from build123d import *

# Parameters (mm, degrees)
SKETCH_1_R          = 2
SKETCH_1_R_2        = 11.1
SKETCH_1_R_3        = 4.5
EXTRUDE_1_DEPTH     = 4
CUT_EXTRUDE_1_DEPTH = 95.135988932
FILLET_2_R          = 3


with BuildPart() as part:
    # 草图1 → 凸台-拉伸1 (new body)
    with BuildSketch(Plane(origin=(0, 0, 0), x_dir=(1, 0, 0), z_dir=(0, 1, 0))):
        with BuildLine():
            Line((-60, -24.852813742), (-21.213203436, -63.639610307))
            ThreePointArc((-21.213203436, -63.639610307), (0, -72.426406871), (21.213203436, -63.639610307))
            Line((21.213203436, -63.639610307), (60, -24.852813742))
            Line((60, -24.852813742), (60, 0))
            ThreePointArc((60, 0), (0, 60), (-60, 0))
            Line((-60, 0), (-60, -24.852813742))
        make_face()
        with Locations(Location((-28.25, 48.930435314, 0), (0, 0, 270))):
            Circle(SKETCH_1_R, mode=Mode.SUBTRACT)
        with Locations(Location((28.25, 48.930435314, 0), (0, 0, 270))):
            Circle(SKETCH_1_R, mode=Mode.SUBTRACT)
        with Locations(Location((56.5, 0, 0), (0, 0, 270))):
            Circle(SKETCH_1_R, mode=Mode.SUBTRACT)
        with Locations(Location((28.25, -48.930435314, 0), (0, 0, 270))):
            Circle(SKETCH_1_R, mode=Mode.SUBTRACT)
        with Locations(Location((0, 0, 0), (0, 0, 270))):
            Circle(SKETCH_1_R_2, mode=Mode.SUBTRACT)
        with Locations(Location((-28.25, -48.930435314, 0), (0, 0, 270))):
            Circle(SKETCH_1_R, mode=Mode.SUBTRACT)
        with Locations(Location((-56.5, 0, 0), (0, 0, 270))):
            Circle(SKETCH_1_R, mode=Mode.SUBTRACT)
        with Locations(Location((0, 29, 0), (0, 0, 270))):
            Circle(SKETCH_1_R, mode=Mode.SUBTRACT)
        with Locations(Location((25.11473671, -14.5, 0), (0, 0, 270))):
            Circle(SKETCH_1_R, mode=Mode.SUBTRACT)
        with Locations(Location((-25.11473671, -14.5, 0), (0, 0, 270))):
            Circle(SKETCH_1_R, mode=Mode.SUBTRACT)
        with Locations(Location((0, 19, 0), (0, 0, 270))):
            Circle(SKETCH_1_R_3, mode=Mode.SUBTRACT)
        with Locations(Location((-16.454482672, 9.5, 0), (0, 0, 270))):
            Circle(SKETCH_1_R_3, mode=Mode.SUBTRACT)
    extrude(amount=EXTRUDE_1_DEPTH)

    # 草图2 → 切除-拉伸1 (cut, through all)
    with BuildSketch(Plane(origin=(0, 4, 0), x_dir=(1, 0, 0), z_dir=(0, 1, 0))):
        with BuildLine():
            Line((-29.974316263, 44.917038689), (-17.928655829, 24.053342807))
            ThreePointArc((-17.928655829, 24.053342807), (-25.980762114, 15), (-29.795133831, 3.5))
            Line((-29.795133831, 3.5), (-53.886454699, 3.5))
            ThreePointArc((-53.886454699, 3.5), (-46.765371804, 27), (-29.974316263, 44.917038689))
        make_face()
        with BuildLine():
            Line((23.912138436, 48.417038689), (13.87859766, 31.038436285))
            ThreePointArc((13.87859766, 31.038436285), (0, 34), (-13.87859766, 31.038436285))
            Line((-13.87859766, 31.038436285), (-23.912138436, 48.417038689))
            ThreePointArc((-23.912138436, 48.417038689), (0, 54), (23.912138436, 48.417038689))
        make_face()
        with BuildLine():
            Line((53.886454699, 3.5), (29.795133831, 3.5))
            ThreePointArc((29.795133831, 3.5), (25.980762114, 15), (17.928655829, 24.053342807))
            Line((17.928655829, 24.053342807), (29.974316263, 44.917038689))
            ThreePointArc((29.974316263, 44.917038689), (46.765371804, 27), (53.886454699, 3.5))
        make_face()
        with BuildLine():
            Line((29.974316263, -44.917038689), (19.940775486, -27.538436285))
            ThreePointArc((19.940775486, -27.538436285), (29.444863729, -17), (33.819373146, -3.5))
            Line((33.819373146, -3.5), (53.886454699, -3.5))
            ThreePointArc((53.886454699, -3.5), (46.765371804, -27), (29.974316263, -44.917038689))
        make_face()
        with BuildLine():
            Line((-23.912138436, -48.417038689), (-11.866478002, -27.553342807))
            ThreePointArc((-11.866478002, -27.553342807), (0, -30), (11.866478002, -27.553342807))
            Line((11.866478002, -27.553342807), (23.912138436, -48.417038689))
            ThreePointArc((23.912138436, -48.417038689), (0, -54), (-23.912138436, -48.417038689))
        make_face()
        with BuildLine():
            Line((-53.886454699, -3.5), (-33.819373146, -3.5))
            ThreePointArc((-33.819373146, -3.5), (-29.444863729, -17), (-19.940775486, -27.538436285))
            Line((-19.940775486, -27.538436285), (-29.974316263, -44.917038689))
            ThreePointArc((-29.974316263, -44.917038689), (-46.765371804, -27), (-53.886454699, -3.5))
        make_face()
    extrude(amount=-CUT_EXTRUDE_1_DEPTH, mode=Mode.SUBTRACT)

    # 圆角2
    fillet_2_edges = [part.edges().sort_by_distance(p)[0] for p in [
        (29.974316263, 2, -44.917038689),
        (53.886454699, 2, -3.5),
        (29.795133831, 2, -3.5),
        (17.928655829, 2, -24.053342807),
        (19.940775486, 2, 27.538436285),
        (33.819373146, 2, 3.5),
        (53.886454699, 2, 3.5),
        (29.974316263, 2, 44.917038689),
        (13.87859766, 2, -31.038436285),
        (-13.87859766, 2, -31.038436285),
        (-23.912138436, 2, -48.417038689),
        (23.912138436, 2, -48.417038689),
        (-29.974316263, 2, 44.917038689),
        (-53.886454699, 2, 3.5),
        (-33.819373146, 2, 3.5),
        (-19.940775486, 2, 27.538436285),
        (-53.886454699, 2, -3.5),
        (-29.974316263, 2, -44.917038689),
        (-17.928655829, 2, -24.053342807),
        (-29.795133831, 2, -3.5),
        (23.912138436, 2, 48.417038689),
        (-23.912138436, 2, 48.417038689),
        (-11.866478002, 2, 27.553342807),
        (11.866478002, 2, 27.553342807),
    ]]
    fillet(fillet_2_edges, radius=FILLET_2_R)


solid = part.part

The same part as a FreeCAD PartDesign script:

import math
import FreeCAD as App
import Part
import Sketcher

V = App.Vector
Q = App.Units.Quantity


def edges_at(feature, points):
    """Names of the edges that pass closest to the given points."""
    edges = feature.Shape.Edges
    near = lambda p: min(range(len(edges)), key=lambda i: edges[i].distToShape(Part.Vertex(*p))[0])
    return sorted({f"Edge{near(p) + 1}" for p in points})

doc = App.newDocument("Part")
body = doc.addObject("PartDesign::Body", "Body")

# Sketch on XZ plane
sketch1 = doc.addObject("Sketcher::SketchObject", "Sketch")
body.addObject(sketch1)
sketch1.AttachmentSupport = (doc.XZ_Plane, [""])
sketch1.MapMode = "FlatFace"
sketch1.addGeometry(Part.LineSegment(V(-60, 24.9, 0), V(-21.2, 63.6, 0)), False)
sketch1.addGeometry(Part.ArcOfCircle(Part.Circle(V(0, 42.4, 0), V(0, 0, 1), 30), math.radians(45), math.radians(135)), False)
sketch1.addGeometry(Part.LineSegment(V(21.2, 63.6, 0), V(60, 24.9, 0)), False)
sketch1.addGeometry(Part.LineSegment(V(60, 24.9, 0), V(60, 0, 0)), False)
sketch1.addGeometry(Part.ArcOfCircle(Part.Circle(V(0, 0, 0), V(0, 0, 1), 60), math.radians(180), math.radians(360)), False)
sketch1.addGeometry(Part.LineSegment(V(-60, 0, 0), V(-60, 24.9, 0)), False)
sketch1.addGeometry(Part.Circle(V(-28.2, 48.9, 0), V(0, 0, 1), 2), False)
sketch1.addGeometry(Part.Circle(V(-25.1, 14.5, 0), V(0, 0, 1), 2), False)
sketch1.addGeometry(Part.Circle(V(28.2, 48.9, 0), V(0, 0, 1), 2), False)
sketch1.addGeometry(Part.Circle(V(25.1, 14.5, 0), V(0, 0, 1), 2), False)
sketch1.addGeometry(Part.Circle(V(-56.5, 0, 0), V(0, 0, 1), 2), False)
sketch1.addGeometry(Part.Circle(V(-16.5, -9.5, 0), V(0, 0, 1), 4.5), False)
sketch1.addGeometry(Part.Circle(V(-28.2, -48.9, 0), V(0, 0, 1), 2), False)
sketch1.addGeometry(Part.Circle(V(0, 0, 0), V(0, 0, 1), 11.1), False)
sketch1.addGeometry(Part.Circle(V(0, -19, 0), V(0, 0, 1), 4.5), False)
sketch1.addGeometry(Part.Circle(V(56.5, 0, 0), V(0, 0, 1), 2), False)
sketch1.addGeometry(Part.Circle(V(0, -29, 0), V(0, 0, 1), 2), False)
sketch1.addGeometry(Part.Circle(V(28.2, -48.9, 0), V(0, 0, 1), 2), False)
sketch1.addConstraint(Sketcher.Constraint("Tangent", 0, 2, 1, 2))
sketch1.addConstraint(Sketcher.Constraint("Tangent", 1, 1, 2, 1))
sketch1.addConstraint(Sketcher.Constraint("Coincident", 2, 2, 3, 1))
sketch1.addConstraint(Sketcher.Constraint("Tangent", 3, 2, 4, 2))
sketch1.addConstraint(Sketcher.Constraint("Tangent", 4, 1, 5, 1))
sketch1.addConstraint(Sketcher.Constraint("Coincident", 5, 2, 0, 1))
sketch1.addConstraint(Sketcher.Constraint("Vertical", 3))
sketch1.addConstraint(Sketcher.Constraint("Vertical", 5))
sketch1.addConstraint(Sketcher.Constraint("Coincident", 4, 3, -1, 1))
sketch1.addConstraint(Sketcher.Constraint("Coincident", 13, 3, -1, 1))
sketch1.addConstraint(Sketcher.Constraint("Equal", 6, 7))
sketch1.addConstraint(Sketcher.Constraint("Equal", 7, 8))
sketch1.addConstraint(Sketcher.Constraint("Equal", 8, 9))
sketch1.addConstraint(Sketcher.Constraint("Equal", 9, 10))
sketch1.addConstraint(Sketcher.Constraint("Equal", 10, 12))
sketch1.addConstraint(Sketcher.Constraint("Equal", 11, 14))
sketch1.addConstraint(Sketcher.Constraint("Equal", 12, 15))
sketch1.addConstraint(Sketcher.Constraint("Equal", 15, 16))
sketch1.addConstraint(Sketcher.Constraint("Equal", 16, 17))
sketch1.addConstraint(Sketcher.Constraint("Symmetric", 8, 3, 12, 3, -1, 1))
sketch1.addConstraint(Sketcher.Constraint("Symmetric", 10, 3, 15, 3, -1, 1))
sketch1.addConstraint(Sketcher.Constraint("Symmetric", 6, 3, 17, 3, -1, 1))
sketch1.addConstraint(Sketcher.Constraint("Symmetric", 6, 3, 8, 3, -2))
sketch1.addConstraint(Sketcher.Constraint("Symmetric", 7, 3, 9, 3, -2))
sketch1.addConstraint(Sketcher.Constraint("Symmetric", 0, 2, 1, 1, -2))
sketch1.addConstraint(Sketcher.Constraint("PointOnObject", 10, 3, -1))
sketch1.addConstraint(Sketcher.Constraint("PointOnObject", 14, 3, -2))
sketch1.addConstraint(Sketcher.Constraint("PointOnObject", 16, 3, -2))
sketch1.addConstraint(Sketcher.Constraint("Perpendicular", 0, 2))
sketch1.addConstraint(Sketcher.Constraint("Diameter", 6, Q("4 mm")))
sketch1.addConstraint(Sketcher.Constraint("Diameter", 11, Q("9 mm")))
sketch1.addConstraint(Sketcher.Constraint("Radius", 1, Q("30 mm")))
sketch1.addConstraint(Sketcher.Constraint("Radius", 4, Q("60 mm")))
sketch1.addConstraint(Sketcher.Constraint("Diameter", 13, Q("22.2 mm")))
sketch1.addConstraint(Sketcher.Constraint("DistanceY", 14, 3, -1, 1, Q("19 mm")))
sketch1.addConstraint(Sketcher.Constraint("DistanceY", 16, 3, -1, 1, Q("29 mm")))
sketch1.addConstraint(Sketcher.Constraint("DistanceY", 11, 3, 7, 3, Q("24 mm")))
sketch1.addConstraint(Sketcher.Constraint("DistanceY", -1, 1, 7, 3, Q("14.5 mm")))
sketch1.addConstraint(Sketcher.Constraint("DistanceX", 10, 3, -1, 1, Q("56.5 mm")))
sketch1.addConstraint(Sketcher.Constraint("DistanceX", 6, 3, 8, 3, Q("56.5 mm")))
sketch1.addConstraint(Sketcher.Constraint("DistanceY", 3, 2, 3, 1, Q("24.852814 mm")))
sketch1.addConstraint(Sketcher.Constraint("DistanceY", 1, 3, 6, 3, Q("6.504028 mm")))
sketch1.addConstraint(Sketcher.Constraint("DistanceX", 11, 3, 9, 3, Q("41.569219 mm")))
sketch1.addConstraint(Sketcher.Constraint("DistanceX", 7, 3, -1, 1, Q("25.114737 mm")))
pad1 = doc.addObject("PartDesign::Pad", "Pad")
body.addObject(pad1)
pad1.Profile = sketch1
pad1.Length = 4
pad1.Reversed = True

# Sketch on XZ plane
sketch2 = doc.addObject("Sketcher::SketchObject", "Sketch001")
body.addObject(sketch2)
sketch2.AttachmentSupport = (doc.XZ_Plane, [""])
sketch2.MapMode = "FlatFace"
sketch2.AttachmentOffset = App.Placement(V(0, 0, -4), App.Rotation())
sketch2.addGeometry(Part.LineSegment(V(-18, -24, 0), V(-30, -45, 0)), False)
sketch2.addGeometry(Part.ArcOfCircle(Part.Circle(V(0, 0, 0), V(0, 0, 1), 54), math.radians(-176), math.radians(-124)), False)
sketch2.addGeometry(Part.LineSegment(V(-54, -4, 0), V(-30, -4, 0)), False)
sketch2.addGeometry(Part.ArcOfCircle(Part.Circle(V(0, 0, 0), V(0, 0, 1), 30), math.radians(-173), math.radians(-127)), False)
sketch2.addGeometry(Part.LineSegment(V(14, -31, 0), V(24, -48, 0)), False)
sketch2.addGeometry(Part.ArcOfCircle(Part.Circle(V(0, 0, 0), V(0, 0, 1), 54), math.radians(-116), math.radians(-64)), False)
sketch2.addGeometry(Part.LineSegment(V(-24, -48, 0), V(-14, -31, 0)), False)
sketch2.addGeometry(Part.ArcOfCircle(Part.Circle(V(0, 0, 0), V(0, 0, 1), 34), math.radians(-114), math.radians(-66)), False)
sketch2.addGeometry(Part.LineSegment(V(30, -4, 0), V(54, -4, 0)), False)
sketch2.addGeometry(Part.ArcOfCircle(Part.Circle(V(0, 0, 0), V(0, 0, 1), 54), math.radians(-56), math.radians(-4)), False)
sketch2.addGeometry(Part.LineSegment(V(30, -45, 0), V(18, -24, 0)), False)
sketch2.addGeometry(Part.ArcOfCircle(Part.Circle(V(0, 0, 0), V(0, 0, 1), 30), math.radians(-53), math.radians(-7)), False)
sketch2.addGeometry(Part.LineSegment(V(20, 28, 0), V(30, 45, 0)), False)
sketch2.addGeometry(Part.ArcOfCircle(Part.Circle(V(0, 0, 0), V(0, 0, 1), 54), math.radians(4), math.radians(56)), False)
sketch2.addGeometry(Part.LineSegment(V(54, 4, 0), V(34, 4, 0)), False)
sketch2.addGeometry(Part.ArcOfCircle(Part.Circle(V(0, 0, 0), V(0, 0, 1), 34), math.radians(6), math.radians(54)), False)
sketch2.addGeometry(Part.LineSegment(V(-12, 28, 0), V(-24, 48, 0)), False)
sketch2.addGeometry(Part.ArcOfCircle(Part.Circle(V(0, 0, 0), V(0, 0, 1), 54), math.radians(64), math.radians(116)), False)
sketch2.addGeometry(Part.LineSegment(V(24, 48, 0), V(12, 28, 0)), False)
sketch2.addGeometry(Part.ArcOfCircle(Part.Circle(V(0, 0, 0), V(0, 0, 1), 30), math.radians(67), math.radians(113)), False)
sketch2.addGeometry(Part.LineSegment(V(-34, 4, 0), V(-54, 4, 0)), False)
sketch2.addGeometry(Part.ArcOfCircle(Part.Circle(V(0, 0, 0), V(0, 0, 1), 54), math.radians(124), math.radians(176)), False)
sketch2.addGeometry(Part.LineSegment(V(-30, 45, 0), V(-20, 28, 0)), False)
sketch2.addGeometry(Part.ArcOfCircle(Part.Circle(V(0, 0, 0), V(0, 0, 1), 34), math.radians(126), math.radians(174)), False)
sketch2.addConstraint(Sketcher.Constraint("Coincident", 0, 2, 1, 2))
sketch2.addConstraint(Sketcher.Constraint("Coincident", 1, 1, 2, 1))
sketch2.addConstraint(Sketcher.Constraint("Coincident", 2, 2, 3, 1))
sketch2.addConstraint(Sketcher.Constraint("Coincident", 3, 2, 0, 1))
sketch2.addConstraint(Sketcher.Constraint("Coincident", 4, 2, 5, 2))
sketch2.addConstraint(Sketcher.Constraint("Coincident", 5, 1, 6, 1))
sketch2.addConstraint(Sketcher.Constraint("Coincident", 6, 2, 7, 1))
sketch2.addConstraint(Sketcher.Constraint("Coincident", 7, 2, 4, 1))
sketch2.addConstraint(Sketcher.Constraint("Coincident", 8, 2, 9, 2))
sketch2.addConstraint(Sketcher.Constraint("Coincident", 9, 1, 10, 1))
sketch2.addConstraint(Sketcher.Constraint("Coincident", 10, 2, 11, 1))
sketch2.addConstraint(Sketcher.Constraint("Coincident", 11, 2, 8, 1))
sketch2.addConstraint(Sketcher.Constraint("Coincident", 12, 2, 13, 2))
sketch2.addConstraint(Sketcher.Constraint("Coincident", 13, 1, 14, 1))
sketch2.addConstraint(Sketcher.Constraint("Coincident", 14, 2, 15, 1))
sketch2.addConstraint(Sketcher.Constraint("Coincident", 15, 2, 12, 1))
sketch2.addConstraint(Sketcher.Constraint("Coincident", 16, 2, 17, 2))
sketch2.addConstraint(Sketcher.Constraint("Coincident", 17, 1, 18, 1))
sketch2.addConstraint(Sketcher.Constraint("Coincident", 18, 2, 19, 1))
sketch2.addConstraint(Sketcher.Constraint("Coincident", 19, 2, 16, 1))
sketch2.addConstraint(Sketcher.Constraint("Coincident", 20, 2, 21, 2))
sketch2.addConstraint(Sketcher.Constraint("Coincident", 21, 1, 22, 1))
sketch2.addConstraint(Sketcher.Constraint("Coincident", 22, 2, 23, 1))
sketch2.addConstraint(Sketcher.Constraint("Coincident", 23, 2, 20, 1))
sketch2.addConstraint(Sketcher.Constraint("Horizontal", 2))
sketch2.addConstraint(Sketcher.Constraint("Horizontal", 8))
sketch2.addConstraint(Sketcher.Constraint("Horizontal", 14))
sketch2.addConstraint(Sketcher.Constraint("Horizontal", 20))
sketch2.addConstraint(Sketcher.Constraint("Coincident", 1, 3, -1, 1))
sketch2.addConstraint(Sketcher.Constraint("Coincident", 3, 3, -1, 1))
sketch2.addConstraint(Sketcher.Constraint("Coincident", 5, 3, -1, 1))
sketch2.addConstraint(Sketcher.Constraint("Coincident", 7, 3, -1, 1))
sketch2.addConstraint(Sketcher.Constraint("Coincident", 9, 3, -1, 1))
sketch2.addConstraint(Sketcher.Constraint("Coincident", 11, 3, -1, 1))
sketch2.addConstraint(Sketcher.Constraint("Coincident", 13, 3, -1, 1))
sketch2.addConstraint(Sketcher.Constraint("Coincident", 15, 3, -1, 1))
sketch2.addConstraint(Sketcher.Constraint("Coincident", 17, 3, -1, 1))
sketch2.addConstraint(Sketcher.Constraint("Coincident", 19, 3, -1, 1))
sketch2.addConstraint(Sketcher.Constraint("Coincident", 21, 3, -1, 1))
sketch2.addConstraint(Sketcher.Constraint("Coincident", 23, 3, -1, 1))
sketch2.addConstraint(Sketcher.Constraint("Equal", 1, 5))
sketch2.addConstraint(Sketcher.Constraint("Equal", 5, 9))
sketch2.addConstraint(Sketcher.Constraint("Equal", 3, 11))
sketch2.addConstraint(Sketcher.Constraint("Equal", 9, 13))
sketch2.addConstraint(Sketcher.Constraint("Equal", 7, 15))
sketch2.addConstraint(Sketcher.Constraint("Equal", 13, 17))
sketch2.addConstraint(Sketcher.Constraint("Equal", 11, 19))
sketch2.addConstraint(Sketcher.Constraint("Equal", 17, 21))
sketch2.addConstraint(Sketcher.Constraint("Equal", 15, 23))
sketch2.addConstraint(Sketcher.Constraint("Parallel", 0, 6))
sketch2.addConstraint(Sketcher.Constraint("Parallel", 4, 10))
sketch2.addConstraint(Sketcher.Constraint("Parallel", 6, 12))
sketch2.addConstraint(Sketcher.Constraint("Parallel", 10, 16))
sketch2.addConstraint(Sketcher.Constraint("Parallel", 12, 18))
sketch2.addConstraint(Sketcher.Constraint("Parallel", 16, 22))
sketch2.addConstraint(Sketcher.Constraint("Horizontal", 4, 2, 5, 1))
sketch2.addConstraint(Sketcher.Constraint("Horizontal", 6, 2, 7, 2))
sketch2.addConstraint(Sketcher.Constraint("Horizontal", 2, 2, 8, 2))
sketch2.addConstraint(Sketcher.Constraint("Horizontal", 0, 2, 9, 1))
sketch2.addConstraint(Sketcher.Constraint("Horizontal", 16, 2, 17, 1))
sketch2.addConstraint(Sketcher.Constraint("Horizontal", 14, 2, 20, 2))
sketch2.addConstraint(Sketcher.Constraint("Horizontal", 12, 2, 21, 1))
sketch2.addConstraint(Sketcher.Constraint("Vertical", 9, 1, 12, 2))
sketch2.addConstraint(Sketcher.Constraint("Vertical", 8, 2, 13, 1))
sketch2.addConstraint(Sketcher.Constraint("Vertical", 5, 1, 16, 2))
sketch2.addConstraint(Sketcher.Constraint("Equal", 6, 12))
sketch2.addConstraint(Sketcher.Constraint("Radius", 1, Q("54 mm")))
sketch2.addConstraint(Sketcher.Constraint("Radius", 3, Q("30 mm")))
sketch2.addConstraint(Sketcher.Constraint("Radius", 7, Q("34 mm")))
sketch2.addConstraint(Sketcher.Constraint("Angle", 0, Q("-120 deg")))
sketch2.addConstraint(Sketcher.Constraint("DistanceY", 8, 2, 13, 1, Q("7 mm")))
sketch2.addConstraint(Sketcher.Constraint("DistanceY", 5, 1, 0, 2, Q("3.5 mm")))
pocket1 = doc.addObject("PartDesign::Pocket", "Pocket")
body.addObject(pocket1)
pocket1.Profile = sketch2
pocket1.Type = "ThroughAll"
pocket1.Reversed = True
doc.recompute()

fillet = doc.addObject("PartDesign::Fillet", "Fillet")
body.addObject(fillet)
fillet.Base = (pocket1, edges_at(pocket1, [
    (29.974, 2, -44.917),
    (53.886, 2, -3.5),
    (29.795, 2, -3.5),
    (17.929, 2, -24.053),
    (19.941, 2, 27.538),
    (33.819, 2, 3.5),
    (53.886, 2, 3.5),
    (29.974, 2, 44.917),
    (13.879, 2, -31.038),
    (-13.879, 2, -31.038),
    (-23.912, 2, -48.417),
    (23.912, 2, -48.417),
    (-29.974, 2, 44.917),
    (-53.886, 2, 3.5),
    (-33.819, 2, 3.5),
    (-19.941, 2, 27.538),
    (-53.886, 2, -3.5),
    (-29.974, 2, -44.917),
    (-17.929, 2, -24.053),
    (-29.795, 2, -3.5),
    (23.912, 2, 48.417),
    (-23.912, 2, 48.417),
    (-11.866, 2, 27.553),
    (11.866, 2, 27.553),
]))
fillet.Radius = 3

doc.recompute()
